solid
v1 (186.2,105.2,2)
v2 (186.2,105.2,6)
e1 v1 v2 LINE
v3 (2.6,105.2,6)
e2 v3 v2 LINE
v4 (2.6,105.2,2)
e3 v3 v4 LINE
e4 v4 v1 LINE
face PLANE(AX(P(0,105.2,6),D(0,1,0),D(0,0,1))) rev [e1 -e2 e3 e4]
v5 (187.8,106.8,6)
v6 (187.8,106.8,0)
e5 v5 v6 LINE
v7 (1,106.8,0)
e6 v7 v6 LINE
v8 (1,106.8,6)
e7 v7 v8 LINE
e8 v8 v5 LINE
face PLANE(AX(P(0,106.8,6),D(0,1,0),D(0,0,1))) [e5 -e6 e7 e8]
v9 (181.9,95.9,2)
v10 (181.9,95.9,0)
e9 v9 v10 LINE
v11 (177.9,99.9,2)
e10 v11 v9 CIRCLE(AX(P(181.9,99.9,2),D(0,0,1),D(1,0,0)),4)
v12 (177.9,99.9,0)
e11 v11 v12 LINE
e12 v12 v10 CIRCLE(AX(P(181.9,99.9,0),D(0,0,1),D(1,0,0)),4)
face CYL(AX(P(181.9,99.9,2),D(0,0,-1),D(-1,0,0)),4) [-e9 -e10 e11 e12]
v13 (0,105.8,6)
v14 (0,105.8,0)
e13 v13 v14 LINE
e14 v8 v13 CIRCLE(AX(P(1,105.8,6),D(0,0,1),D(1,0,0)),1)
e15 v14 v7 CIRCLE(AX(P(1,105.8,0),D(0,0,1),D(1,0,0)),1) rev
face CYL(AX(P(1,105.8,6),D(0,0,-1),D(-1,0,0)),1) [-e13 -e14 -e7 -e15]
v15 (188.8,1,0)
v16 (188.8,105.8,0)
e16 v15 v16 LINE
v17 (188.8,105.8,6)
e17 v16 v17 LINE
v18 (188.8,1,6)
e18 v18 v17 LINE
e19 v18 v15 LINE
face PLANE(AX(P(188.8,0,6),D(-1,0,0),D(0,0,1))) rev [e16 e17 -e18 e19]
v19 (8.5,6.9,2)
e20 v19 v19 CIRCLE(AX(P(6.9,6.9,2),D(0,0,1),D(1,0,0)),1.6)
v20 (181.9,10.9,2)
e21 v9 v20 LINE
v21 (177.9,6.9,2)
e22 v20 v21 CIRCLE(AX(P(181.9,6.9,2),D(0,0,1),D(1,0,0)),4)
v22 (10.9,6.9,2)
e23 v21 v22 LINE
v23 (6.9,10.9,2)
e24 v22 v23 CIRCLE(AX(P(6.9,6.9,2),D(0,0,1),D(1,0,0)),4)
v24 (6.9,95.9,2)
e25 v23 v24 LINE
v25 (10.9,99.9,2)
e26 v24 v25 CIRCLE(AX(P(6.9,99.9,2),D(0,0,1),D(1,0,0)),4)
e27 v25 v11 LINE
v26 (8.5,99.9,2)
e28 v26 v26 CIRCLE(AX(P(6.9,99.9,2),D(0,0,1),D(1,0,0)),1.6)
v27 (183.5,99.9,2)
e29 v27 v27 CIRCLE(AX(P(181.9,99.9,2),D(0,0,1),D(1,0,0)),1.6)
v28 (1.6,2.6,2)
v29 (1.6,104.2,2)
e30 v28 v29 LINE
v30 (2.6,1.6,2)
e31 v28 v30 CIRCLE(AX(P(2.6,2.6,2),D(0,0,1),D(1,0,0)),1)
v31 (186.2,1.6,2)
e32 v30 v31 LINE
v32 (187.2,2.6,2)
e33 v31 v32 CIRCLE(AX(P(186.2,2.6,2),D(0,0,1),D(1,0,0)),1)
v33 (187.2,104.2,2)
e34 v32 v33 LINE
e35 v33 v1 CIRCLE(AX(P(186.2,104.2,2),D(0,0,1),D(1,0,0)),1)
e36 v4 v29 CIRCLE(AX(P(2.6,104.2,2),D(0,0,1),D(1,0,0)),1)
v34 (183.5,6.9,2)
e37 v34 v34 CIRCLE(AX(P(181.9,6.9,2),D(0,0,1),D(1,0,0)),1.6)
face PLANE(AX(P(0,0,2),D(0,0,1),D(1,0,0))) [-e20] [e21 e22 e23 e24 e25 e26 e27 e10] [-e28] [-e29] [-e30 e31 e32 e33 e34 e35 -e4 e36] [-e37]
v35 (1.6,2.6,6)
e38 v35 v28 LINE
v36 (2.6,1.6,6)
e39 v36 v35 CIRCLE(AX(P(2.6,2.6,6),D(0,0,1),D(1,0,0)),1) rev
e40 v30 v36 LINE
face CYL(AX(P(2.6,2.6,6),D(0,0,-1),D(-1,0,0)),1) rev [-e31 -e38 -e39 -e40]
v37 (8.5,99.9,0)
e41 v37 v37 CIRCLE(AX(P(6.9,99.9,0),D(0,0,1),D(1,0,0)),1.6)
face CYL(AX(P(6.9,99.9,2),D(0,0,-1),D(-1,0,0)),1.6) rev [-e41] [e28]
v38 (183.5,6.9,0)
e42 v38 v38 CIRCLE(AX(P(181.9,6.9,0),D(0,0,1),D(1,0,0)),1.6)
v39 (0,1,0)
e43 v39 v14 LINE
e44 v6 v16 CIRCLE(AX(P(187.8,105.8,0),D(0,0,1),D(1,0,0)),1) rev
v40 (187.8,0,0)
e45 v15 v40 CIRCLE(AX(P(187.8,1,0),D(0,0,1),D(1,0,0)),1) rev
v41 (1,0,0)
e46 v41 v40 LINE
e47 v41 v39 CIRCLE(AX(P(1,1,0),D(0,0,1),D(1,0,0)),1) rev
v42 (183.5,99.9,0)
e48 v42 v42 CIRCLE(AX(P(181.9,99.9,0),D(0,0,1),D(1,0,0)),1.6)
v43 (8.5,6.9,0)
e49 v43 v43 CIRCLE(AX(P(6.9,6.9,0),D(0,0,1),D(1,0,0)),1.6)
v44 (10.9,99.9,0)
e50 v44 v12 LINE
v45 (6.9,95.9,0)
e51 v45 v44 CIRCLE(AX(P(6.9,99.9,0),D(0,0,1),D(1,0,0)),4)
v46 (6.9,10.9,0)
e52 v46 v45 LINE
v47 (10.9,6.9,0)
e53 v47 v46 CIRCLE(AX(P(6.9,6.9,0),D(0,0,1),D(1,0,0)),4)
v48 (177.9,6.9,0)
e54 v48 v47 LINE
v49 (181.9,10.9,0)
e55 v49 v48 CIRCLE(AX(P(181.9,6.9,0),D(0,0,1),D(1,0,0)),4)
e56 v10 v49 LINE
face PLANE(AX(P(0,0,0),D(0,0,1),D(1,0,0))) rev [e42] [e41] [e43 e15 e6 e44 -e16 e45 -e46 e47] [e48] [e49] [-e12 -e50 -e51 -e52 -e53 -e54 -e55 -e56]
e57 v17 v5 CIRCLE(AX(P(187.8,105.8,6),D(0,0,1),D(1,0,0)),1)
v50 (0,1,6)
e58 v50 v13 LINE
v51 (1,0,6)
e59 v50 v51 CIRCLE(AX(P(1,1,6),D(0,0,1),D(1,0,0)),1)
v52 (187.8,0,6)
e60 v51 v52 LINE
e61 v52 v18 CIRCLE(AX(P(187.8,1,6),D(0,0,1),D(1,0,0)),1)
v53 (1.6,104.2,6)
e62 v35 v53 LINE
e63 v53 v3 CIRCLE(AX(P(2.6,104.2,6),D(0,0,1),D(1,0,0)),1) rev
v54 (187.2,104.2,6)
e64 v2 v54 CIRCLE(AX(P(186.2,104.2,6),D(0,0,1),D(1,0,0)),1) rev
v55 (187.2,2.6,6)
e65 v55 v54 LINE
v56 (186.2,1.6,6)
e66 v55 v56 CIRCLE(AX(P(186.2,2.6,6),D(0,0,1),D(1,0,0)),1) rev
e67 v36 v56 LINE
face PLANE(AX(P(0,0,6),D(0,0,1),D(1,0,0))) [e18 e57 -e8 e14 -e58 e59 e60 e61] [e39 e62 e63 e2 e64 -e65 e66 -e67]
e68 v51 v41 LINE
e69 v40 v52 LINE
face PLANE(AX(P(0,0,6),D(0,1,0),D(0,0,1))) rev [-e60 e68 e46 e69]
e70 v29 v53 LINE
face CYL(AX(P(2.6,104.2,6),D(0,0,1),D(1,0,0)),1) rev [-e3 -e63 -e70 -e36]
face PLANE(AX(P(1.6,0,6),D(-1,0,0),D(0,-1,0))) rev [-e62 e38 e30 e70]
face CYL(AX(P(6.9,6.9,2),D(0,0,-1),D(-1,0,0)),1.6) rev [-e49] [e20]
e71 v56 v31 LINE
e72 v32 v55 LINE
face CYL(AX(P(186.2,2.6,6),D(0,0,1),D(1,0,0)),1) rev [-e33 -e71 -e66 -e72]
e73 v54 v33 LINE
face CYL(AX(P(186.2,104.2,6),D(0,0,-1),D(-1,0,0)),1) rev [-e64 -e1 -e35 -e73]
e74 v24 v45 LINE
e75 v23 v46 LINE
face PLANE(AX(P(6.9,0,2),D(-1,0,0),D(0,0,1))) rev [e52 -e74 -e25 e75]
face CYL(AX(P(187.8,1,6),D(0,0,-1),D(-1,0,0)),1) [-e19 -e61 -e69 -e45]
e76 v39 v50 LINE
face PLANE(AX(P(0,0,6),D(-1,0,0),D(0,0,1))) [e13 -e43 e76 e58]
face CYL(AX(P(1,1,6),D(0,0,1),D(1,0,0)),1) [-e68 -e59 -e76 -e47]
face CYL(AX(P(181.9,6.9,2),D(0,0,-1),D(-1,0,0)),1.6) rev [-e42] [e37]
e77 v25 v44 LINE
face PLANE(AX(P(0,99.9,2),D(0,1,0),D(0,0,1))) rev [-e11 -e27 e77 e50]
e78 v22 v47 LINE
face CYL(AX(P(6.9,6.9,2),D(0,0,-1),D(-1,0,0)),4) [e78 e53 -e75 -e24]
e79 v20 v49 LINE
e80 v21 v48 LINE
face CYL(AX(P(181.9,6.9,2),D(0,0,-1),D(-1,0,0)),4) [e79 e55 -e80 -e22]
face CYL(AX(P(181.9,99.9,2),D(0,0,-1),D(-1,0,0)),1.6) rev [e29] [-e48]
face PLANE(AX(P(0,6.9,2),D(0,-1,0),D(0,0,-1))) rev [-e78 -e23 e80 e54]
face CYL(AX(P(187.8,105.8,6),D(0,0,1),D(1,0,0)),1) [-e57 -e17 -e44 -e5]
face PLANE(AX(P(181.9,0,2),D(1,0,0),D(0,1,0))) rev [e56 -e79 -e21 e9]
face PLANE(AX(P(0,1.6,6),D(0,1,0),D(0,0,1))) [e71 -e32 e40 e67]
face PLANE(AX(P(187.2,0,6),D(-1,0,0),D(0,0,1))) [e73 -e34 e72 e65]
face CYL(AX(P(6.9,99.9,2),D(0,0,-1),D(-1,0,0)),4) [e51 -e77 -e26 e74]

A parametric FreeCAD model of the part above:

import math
import FreeCAD as App
import Part
import Sketcher
from FreeCAD import Vector
Q = App.Units.Quantity


def edges_at(feature, points):
    """Names of the edges that pass closest to the given points."""
    edges = feature.Shape.Edges
    near = lambda p: min(range(len(edges)), key=lambda i: edges[i].distToShape(Part.Vertex(*p))[0])
    return sorted({f"Edge{near(p) + 1}" for p in points})


def add_polygon(sketch, points):
    """Adds a closed chain of lines whose ends are joined by coincident constraints."""
    first, n = sketch.GeometryCount, len(points)
    for a, b in zip(points, points[1:] + points[:1]):
        sketch.addGeometry(Part.LineSegment(App.Vector(*a, 0), App.Vector(*b, 0)), False)
    for i in range(n):
        sketch.addConstraint(Sketcher.Constraint("Coincident", first + i, 2, first + (i + 1) % n, 1))

doc = App.newDocument("Part")
body = doc.addObject("PartDesign::Body", "Body")

sketch1 = body.newObject("Sketcher::SketchObject", "Sketch")
sketch1.AttachmentSupport = (doc.getObject("XY_Plane"), [""])
sketch1.MapMode = "FlatFace"
add_polygon(sketch1, [(1.6, 105.2), (1.6, 1.6), (187.2, 1.6), (187.2, 105.2)])
sketch1.addGeometry(Part.Circle(Vector(6.9, 6.9, 0), Vector(0, 0, 1), 1.6), False)
sketch1.addGeometry(Part.Circle(Vector(181.9, 6.9, 0), Vector(0, 0, 1), 1.6), False)
sketch1.addGeometry(Part.LineSegment(Vector(10.9, 99.9, 0), Vector(177.9, 99.9, 0)), False)
sketch1.addGeometry(Part.ArcOfCircle(Part.Circle(Vector(181.9, 99.9, 0), Vector(0, 0, 1), 4), math.radians(180), math.radians(270)), False)
sketch1.addGeometry(Part.LineSegment(Vector(181.9, 95.9, 0), Vector(181.9, 10.9, 0)), False)
sketch1.addGeometry(Part.ArcOfCircle(Part.Circle(Vector(181.9, 6.9, 0), Vector(0, 0, 1), 4), math.radians(90), math.radians(180)), False)
sketch1.addGeometry(Part.LineSegment(Vector(177.9, 6.9, 0), Vector(10.9, 6.9, 0)), False)
sketch1.addGeometry(Part.ArcOfCircle(Part.Circle(Vector(6.9, 6.9, 0), Vector(0, 0, 1), 4), math.radians(0), math.radians(90)), False)
sketch1.addGeometry(Part.LineSegment(Vector(6.9, 10.9, 0), Vector(6.9, 95.9, 0)), False)
sketch1.addGeometry(Part.ArcOfCircle(Part.Circle(Vector(6.9, 99.9, 0), Vector(0, 0, 1), 4), math.radians(-90), math.radians(0)), False)
sketch1.addGeometry(Part.Circle(Vector(6.9, 99.9, 0), Vector(0, 0, 1), 1.6), False)
sketch1.addGeometry(Part.Circle(Vector(181.9, 99.9, 0), Vector(0, 0, 1), 1.6), False)
sketch1.addConstraint(Sketcher.Constraint("Coincident", 6, 2, 7, 1))
sketch1.addConstraint(Sketcher.Constraint("Coincident", 7, 2, 8, 1))
sketch1.addConstraint(Sketcher.Constraint("Coincident", 8, 2, 9, 1))
sketch1.addConstraint(Sketcher.Constraint("Coincident", 9, 2, 10, 1))
sketch1.addConstraint(Sketcher.Constraint("Coincident", 10, 2, 11, 1))
sketch1.addConstraint(Sketcher.Constraint("Coincident", 11, 2, 12, 1))
sketch1.addConstraint(Sketcher.Constraint("Coincident", 12, 2, 13, 1))
sketch1.addConstraint(Sketcher.Constraint("Coincident", 13, 2, 6, 1))
sketch1.addConstraint(Sketcher.Constraint("Vertical", 0))
sketch1.addConstraint(Sketcher.Constraint("Horizontal", 1))
sketch1.addConstraint(Sketcher.Constraint("Vertical", 2))
sketch1.addConstraint(Sketcher.Constraint("Horizontal", 3))
sketch1.addConstraint(Sketcher.Constraint("Horizontal", 6))
sketch1.addConstraint(Sketcher.Constraint("Vertical", 8))
sketch1.addConstraint(Sketcher.Constraint("Horizontal", 10))
sketch1.addConstraint(Sketcher.Constraint("Vertical", 12))
sketch1.addConstraint(Sketcher.Constraint("Coincident", 9, 3, 5, 3))
sketch1.addConstraint(Sketcher.Constraint("Coincident", 11, 3, 4, 3))
sketch1.addConstraint(Sketcher.Constraint("Coincident", 14, 3, 13, 3))
sketch1.addConstraint(Sketcher.Constraint("Coincident", 15, 3, 7, 3))
sketch1.addConstraint(Sketcher.Constraint("Equal", 4, 5))
sketch1.addConstraint(Sketcher.Constraint("Equal", 7, 9))
sketch1.addConstraint(Sketcher.Constraint("Equal", 9, 11))
sketch1.addConstraint(Sketcher.Constraint("Equal", 11, 13))
sketch1.addConstraint(Sketcher.Constraint("Equal", 5, 14))
sketch1.addConstraint(Sketcher.Constraint("Equal", 14, 15))
sketch1.addConstraint(Sketcher.Constraint("Horizontal", 4, 3, 5, 3))
sketch1.addConstraint(Sketcher.Constraint("Horizontal", 7, 3, 13, 3))
sketch1.addConstraint(Sketcher.Constraint("Horizontal", 15, 3, 6, 2))
sketch1.addConstraint(Sketcher.Constraint("Horizontal", 11, 3, 9, 2))
sketch1.addConstraint(Sketcher.Constraint("Vertical", 5, 3, 7, 3))
sketch1.addConstraint(Sketcher.Constraint("Vertical", 11, 3, 13, 3))
sketch1.addConstraint(Sketcher.Constraint("Vertical", 15, 3, 7, 2))
sketch1.addConstraint(Sketcher.Constraint("Vertical", 14, 3, 11, 2))
sketch1.addConstraint(Sketcher.Constraint("Radius", 7, Q("4 mm")))
sketch1.addConstraint(Sketcher.Constraint("Diameter", 4, Q("3.2 mm")))
sketch1.addConstraint(Sketcher.Constraint("DistanceX", 6, 1, 6, 2, Q("167 mm")))
sketch1.addConstraint(Sketcher.Constraint("DistanceY", 8, 2, 8, 1, Q("85 mm")))
sketch1.addConstraint(Sketcher.Constraint("DistanceX", 1, 1, 1, 2, Q("185.6 mm")))
sketch1.addConstraint(Sketcher.Constraint("DistanceY", 0, 2, 0, 1, Q("103.6 mm")))
sketch1.addConstraint(Sketcher.Constraint("DistanceX", -1, 1, 4, 3, Q("6.9 mm")))
sketch1.addConstraint(Sketcher.Constraint("DistanceY", -1, 1, 4, 3, Q("6.9 mm")))
sketch1.addConstraint(Sketcher.Constraint("DistanceX", -1, 1, 0, 2, Q("1.6 mm")))
sketch1.addConstraint(Sketcher.Constraint("DistanceY", -1, 1, 0, 2, Q("1.6 mm")))
pad1 = body.newObject("PartDesign::Pad", "Pad")
pad1.Profile = sketch1
pad1.Length = 2

sketch2 = body.newObject("Sketcher::SketchObject", "Sketch001")
sketch2.AttachmentSupport = (doc.getObject("XY_Plane"), [""])
sketch2.MapMode = "FlatFace"
add_polygon(sketch2, [(0, 106.8), (0, 0), (188.8, 0), (188.8, 106.8)])
add_polygon(sketch2, [(187.2, 1.6), (1.6, 1.6), (1.6, 105.2), (187.2, 105.2)])
sketch2.addConstraint(Sketcher.Constraint("Vertical", 0))
sketch2.addConstraint(Sketcher.Constraint("Horizontal", 1))
sketch2.addConstraint(Sketcher.Constraint("Vertical", 2))
sketch2.addConstraint(Sketcher.Constraint("Horizontal", 3))
sketch2.addConstraint(Sketcher.Constraint("Horizontal", 4))
sketch2.addConstraint(Sketcher.Constraint("Vertical", 5))
sketch2.addConstraint(Sketcher.Constraint("Horizontal", 6))
sketch2.addConstraint(Sketcher.Constraint("Vertical", 7))
sketch2.addConstraint(Sketcher.Constraint("Coincident", 0, 2, -1, 1))
sketch2.addConstraint(Sketcher.Constraint("DistanceX", 1, 1, 1, 2, Q("188.8 mm")))
sketch2.addConstraint(Sketcher.Constraint("DistanceX", 4, 2, 4, 1, Q("185.6 mm")))
sketch2.addConstraint(Sketcher.Constraint("DistanceY", 0, 2, 0, 1, Q("106.8 mm")))
sketch2.addConstraint(Sketcher.Constraint("DistanceY", 5, 1, 5, 2, Q("103.6 mm")))
sketch2.addConstraint(Sketcher.Constraint("DistanceX", -1, 1, 4, 2, Q("1.6 mm")))
sketch2.addConstraint(Sketcher.Constraint("DistanceY", -1, 1, 4, 2, Q("1.6 mm")))
pad2 = body.newObject("PartDesign::Pad", "Pad001")
pad2.Profile = sketch2
pad2.Length = 6
doc.recompute()

fillet = body.newObject("PartDesign::Fillet", "Fillet")
fillet.Base = (pad2, edges_at(pad2, [
    (0, 0, 3),
    (188.8, 0, 3),
    (188.8, 106.8, 3),
    (187.2, 105.2, 4),
    (187.2, 1.6, 4),
    (1.6, 1.6, 4),
    (1.6, 105.2, 4),
    (0, 106.8, 3),
]))
fillet.Radius = 1

doc.recompute()
